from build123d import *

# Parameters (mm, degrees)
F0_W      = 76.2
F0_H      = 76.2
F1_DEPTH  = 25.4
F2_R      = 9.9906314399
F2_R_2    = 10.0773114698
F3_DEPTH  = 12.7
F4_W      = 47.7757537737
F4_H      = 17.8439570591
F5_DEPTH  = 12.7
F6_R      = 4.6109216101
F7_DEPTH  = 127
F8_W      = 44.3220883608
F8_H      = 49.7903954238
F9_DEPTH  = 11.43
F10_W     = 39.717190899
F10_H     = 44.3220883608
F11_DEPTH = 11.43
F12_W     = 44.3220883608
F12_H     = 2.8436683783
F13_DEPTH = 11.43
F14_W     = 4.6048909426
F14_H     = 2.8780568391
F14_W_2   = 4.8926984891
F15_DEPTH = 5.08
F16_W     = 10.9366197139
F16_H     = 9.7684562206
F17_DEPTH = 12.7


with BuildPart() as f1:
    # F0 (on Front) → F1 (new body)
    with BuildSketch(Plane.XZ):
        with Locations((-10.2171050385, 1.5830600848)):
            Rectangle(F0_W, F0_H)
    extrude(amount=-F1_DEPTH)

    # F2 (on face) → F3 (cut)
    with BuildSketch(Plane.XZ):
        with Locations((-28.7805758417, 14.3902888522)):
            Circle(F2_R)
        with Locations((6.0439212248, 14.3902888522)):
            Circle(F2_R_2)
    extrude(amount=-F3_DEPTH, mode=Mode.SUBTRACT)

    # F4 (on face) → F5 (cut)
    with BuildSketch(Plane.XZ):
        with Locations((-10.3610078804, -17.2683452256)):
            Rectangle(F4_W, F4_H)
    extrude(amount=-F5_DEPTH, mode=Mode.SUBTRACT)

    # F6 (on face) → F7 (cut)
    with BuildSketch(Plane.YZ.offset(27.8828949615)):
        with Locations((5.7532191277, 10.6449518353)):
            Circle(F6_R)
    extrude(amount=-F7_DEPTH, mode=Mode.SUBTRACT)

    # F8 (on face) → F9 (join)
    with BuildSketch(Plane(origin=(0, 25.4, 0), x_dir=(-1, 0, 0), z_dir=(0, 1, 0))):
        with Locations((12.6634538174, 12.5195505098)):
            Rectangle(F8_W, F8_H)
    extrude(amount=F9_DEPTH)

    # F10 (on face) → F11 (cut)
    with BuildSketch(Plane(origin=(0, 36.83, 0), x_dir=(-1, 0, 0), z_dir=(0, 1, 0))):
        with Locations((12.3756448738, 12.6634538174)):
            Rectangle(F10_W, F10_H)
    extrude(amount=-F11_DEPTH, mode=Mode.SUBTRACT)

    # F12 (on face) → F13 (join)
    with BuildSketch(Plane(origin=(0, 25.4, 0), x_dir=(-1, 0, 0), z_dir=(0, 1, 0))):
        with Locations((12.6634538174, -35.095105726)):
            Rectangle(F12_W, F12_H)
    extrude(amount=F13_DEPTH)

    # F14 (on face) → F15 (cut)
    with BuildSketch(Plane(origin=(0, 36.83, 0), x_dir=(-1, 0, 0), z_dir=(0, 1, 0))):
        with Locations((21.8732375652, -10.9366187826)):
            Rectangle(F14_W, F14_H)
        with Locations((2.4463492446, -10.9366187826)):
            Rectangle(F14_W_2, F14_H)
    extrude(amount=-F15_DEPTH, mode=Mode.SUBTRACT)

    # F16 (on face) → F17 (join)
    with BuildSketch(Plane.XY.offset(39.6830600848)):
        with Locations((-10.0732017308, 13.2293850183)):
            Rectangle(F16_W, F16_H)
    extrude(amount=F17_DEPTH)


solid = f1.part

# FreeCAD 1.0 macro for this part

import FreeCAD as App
import Part
import Sketcher

V = App.Vector
Q = App.Units.Quantity

doc = App.newDocument("Part")
body = doc.addObject("PartDesign::Body", "Body")

# Sketch on XZ plane
sketch1 = body.newObject("Sketcher::SketchObject", "Sketch")
sketch1.AttachmentSupport = (doc.getObject("XZ_Plane"), [""])
sketch1.MapMode = "FlatFace"
sketch1.addGeometry([
    Part.LineSegment(V(-48, 40, 0), V(-48, -37, 0)),
    Part.LineSegment(V(-48, -37, 0), V(28, -37, 0)),
    Part.LineSegment(V(28, -37, 0), V(28, 40, 0)),
    Part.LineSegment(V(28, 40, 0), V(-48, 40, 0)),
], False)
sketch1.addConstraint([
    Sketcher.Constraint("Coincident", 0, 2, 1, 1),
    Sketcher.Constraint("Coincident", 1, 2, 2, 1),
    Sketcher.Constraint("Coincident", 2, 2, 3, 1),
    Sketcher.Constraint("Coincident", 3, 2, 0, 1),
    Sketcher.Constraint("Vertical", 0),
    Sketcher.Constraint("Horizontal", 1),
    Sketcher.Constraint("Vertical", 2),
    Sketcher.Constraint("Horizontal", 3),
    Sketcher.Constraint("Equal", 3, 0),
    Sketcher.Constraint("DistanceX", 1, 1, 1, 2, Q("3 in")),
    Sketcher.Constraint("DistanceY", 0, 2, -1, 1, 36.51694),
    Sketcher.Constraint("DistanceX", 0, 2, -1, 1, 48.317105),
])
pad1 = body.newObject("PartDesign::Pad", "Pad")
pad1.Profile = sketch1
pad1.Length = Q("1 in")
pad1.Reversed = True

# Sketch on XZ plane
sketch2 = body.newObject("Sketcher::SketchObject", "Sketch001")
sketch2.AttachmentSupport = (doc.getObject("XZ_Plane"), [""])
sketch2.MapMode = "FlatFace"
sketch2.addGeometry([
    Part.Circle(V(-29, 14, 0), V(0, 0, 1), 10),
    Part.Circle(V(6, 14, 0), V(0, 0, 1), 10),
], False)
sketch2.addConstraint([
    Sketcher.Constraint("Horizontal", 0, 3, 1, 3),
    Sketcher.Constraint("Diameter", 0, 19.981263),
    Sketcher.Constraint("Diameter", 1, 20.154623),
    Sketcher.Constraint("DistanceY", -1, 1, 0, 3, 14.390289),
    Sketcher.Constraint("DistanceX", -1, 1, 1, 3, 6.043921),
    Sketcher.Constraint("DistanceX", 0, 3, -1, 1, 28.780576),
])
pocket1 = body.newObject("PartDesign::Pocket", "Pocket")
pocket1.Profile = sketch2
pocket1.Length = Q("0.5 in")

# Sketch on XZ plane
sketch3 = body.newObject("Sketcher::SketchObject", "Sketch002")
sketch3.AttachmentSupport = (doc.getObject("XZ_Plane"), [""])
sketch3.MapMode = "FlatFace"
sketch3.addGeometry([
    Part.LineSegment(V(-34, -8, 0), V(-34, -26, 0)),
    Part.LineSegment(V(-34, -26, 0), V(14, -26, 0)),
    Part.LineSegment(V(14, -26, 0), V(14, -8, 0)),
    Part.LineSegment(V(14, -8, 0), V(-34, -8, 0)),
], False)
sketch3.addConstraint([
    Sketcher.Constraint("Coincident", 0, 2, 1, 1),
    Sketcher.Constraint("Coincident", 1, 2, 2, 1),
    Sketcher.Constraint("Coincident", 2, 2, 3, 1),
    Sketcher.Constraint("Coincident", 3, 2, 0, 1),
    Sketcher.Constraint("Vertical", 0),
    Sketcher.Constraint("Horizontal", 1),
    Sketcher.Constraint("Vertical", 2),
    Sketcher.Constraint("Horizontal", 3),
    Sketcher.Constraint("DistanceX", 1, 1, 1, 2, 47.775754),
    Sketcher.Constraint("DistanceY", 0, 2, 0, 1, 17.843957),
    Sketcher.Constraint("DistanceX", -1, 1, 1, 2, 13.526869),
    Sketcher.Constraint("DistanceY", 0, 2, -1, 1, 26.190324),
])
pocket2 = body.newObject("PartDesign::Pocket", "Pocket001")
pocket2.Profile = sketch3
pocket2.Length = Q("0.5 in")

# Sketch on YZ plane
sketch4 = body.newObject("Sketcher::SketchObject", "Sketch003")
sketch4.AttachmentSupport = (doc.getObject("YZ_Plane"), [""])
sketch4.MapMode = "FlatFace"
sketch4.AttachmentOffset = App.Placement(V(0, 0, 27.882895), App.Rotation())
sketch4.addGeometry(Part.Circle(V(5.8, 10.6, 0), V(0, 0, 1), 4.6), False)
sketch4.addConstraint([
    Sketcher.Constraint("Diameter", 0, 9.221843),
    Sketcher.Constraint("DistanceX", -1, 1, 0, 3, 5.753219),
    Sketcher.Constraint("DistanceY", -1, 1, 0, 3, 10.644952),
])
pocket3 = body.newObject("PartDesign::Pocket", "Pocket002")
pocket3.Profile = sketch4
pocket3.Length = Q("5 in")

# Sketch on XZ plane
sketch5 = body.newObject("Sketcher::SketchObject", "Sketch004")
sketch5.AttachmentSupport = (doc.getObject("XZ_Plane"), [""])
sketch5.MapMode = "FlatFace"
sketch5.AttachmentOffset = App.Placement(V(0, 0, -1 * 25.4), App.Rotation())
sketch5.addGeometry([
    Part.LineSegment(V(9, 37, 0), V(9, -12, 0)),
    Part.LineSegment(V(9, -12, 0), V(-35, -12, 0)),
    Part.LineSegment(V(-35, -12, 0), V(-35, 37, 0)),
    Part.LineSegment(V(-35, 37, 0), V(9, 37, 0)),
], False)
sketch5.addConstraint([
    Sketcher.Constraint("Coincident", 0, 2, 1, 1),
    Sketcher.Constraint("Coincident", 1, 2, 2, 1),
    Sketcher.Constraint("Coincident", 2, 2, 3, 1),
    Sketcher.Constraint("Coincident", 3, 2, 0, 1),
    Sketcher.Constraint("Vertical", 0),
    Sketcher.Constraint("Horizontal", 1),
    Sketcher.Constraint("Vertical", 2),
    Sketcher.Constraint("Horizontal", 3),
    Sketcher.Constraint("DistanceX", 1, 2, 1, 1, 44.322088),
    Sketcher.Constraint("DistanceY", 0, 2, 0, 1, 49.790395),
    Sketcher.Constraint("DistanceX", -1, 1, 0, 2, 9.49759),
    Sketcher.Constraint("DistanceY", -1, 1, 2, 2, 37.414748),
])
pad2 = body.newObject("PartDesign::Pad", "Pad001")
pad2.Profile = sketch5
pad2.Length = Q("0.45 in")
pad2.Reversed = True

# Sketch on XZ plane
sketch6 = body.newObject("Sketcher::SketchObject", "Sketch005")
sketch6.AttachmentSupport = (doc.getObject("XZ_Plane"), [""])
sketch6.MapMode = "FlatFace"
sketch6.AttachmentOffset = App.Placement(V(0, 0, -1.45 * 25.4), App.Rotation())
sketch6.addGeometry([
    Part.LineSegment(V(7, 35, 0), V(7, -9, 0)),
    Part.LineSegment(V(7, -9, 0), V(-32, -9, 0)),
    Part.LineSegment(V(-32, -9, 0), V(-32, 35, 0)),
    Part.LineSegment(V(-32, 35, 0), V(7, 35, 0)),
], False)
sketch6.addConstraint([
    Sketcher.Constraint("Coincident", 0, 2, 1, 1),
    Sketcher.Constraint("Coincident", 1, 2, 2, 1),
    Sketcher.Constraint("Coincident", 2, 2, 3, 1),
    Sketcher.Constraint("Coincident", 3, 2, 0, 1),
    Sketcher.Constraint("Vertical", 0),
    Sketcher.Constraint("Horizontal", 1),
    Sketcher.Constraint("Vertical", 2),
    Sketcher.Constraint("Horizontal", 3),
    Sketcher.Constraint("DistanceX", 1, 2, 1, 1, 39.717191),
    Sketcher.Constraint("DistanceY", 0, 2, 0, 1, 44.322088),
    Sketcher.Constraint("DistanceX", -1, 1, 0, 2, 7.482951),
    Sketcher.Constraint("DistanceY", 0, 2, -1, 1, 9.49759),
])
pocket4 = body.newObject("PartDesign::Pocket", "Pocket003")
pocket4.Profile = sketch6
pocket4.Length = Q("0.45 in")
pocket4.Reversed = True

# Sketch on XZ plane
sketch7 = body.newObject("Sketcher::SketchObject", "Sketch006")
sketch7.AttachmentSupport = (doc.getObject("XZ_Plane"), [""])
sketch7.MapMode = "FlatFace"
sketch7.AttachmentOffset = App.Placement(V(0, 0, -1 * 25.4), App.Rotation())
sketch7.addGeometry([
    Part.LineSegment(V(9.5, -33.7, 0), V(9.5, -36.5, 0)),
    Part.LineSegment(V(9.5, -36.5, 0), V(-34.8, -36.5, 0)),
    Part.LineSegment(V(-34.8, -36.5, 0), V(-34.8, -33.7, 0)),
    Part.LineSegment(V(-34.8, -33.7, 0), V(9.5, -33.7, 0)),
], False)
sketch7.addConstraint([
    Sketcher.Constraint("Coincident", 0, 2, 1, 1),
    Sketcher.Constraint("Coincident", 1, 2, 2, 1),
    Sketcher.Constraint("Coincident", 2, 2, 3, 1),
    Sketcher.Constraint("Coincident", 3, 2, 0, 1),
    Sketcher.Constraint("Vertical", 0),
    Sketcher.Constraint("Horizontal", 1),
    Sketcher.Constraint("Vertical", 2),
    Sketcher.Constraint("Horizontal", 3),
    Sketcher.Constraint("DistanceX", 1, 2, 1, 1, 44.322088),
    Sketcher.Constraint("DistanceY", 0, 2, 0, 1, 2.843668),
    Sketcher.Constraint("DistanceX", -1, 1, 0, 2, 9.49759),
    Sketcher.Constraint("DistanceY", 0, 2, -1, 1, 36.51694),
])
pad3 = body.newObject("PartDesign::Pad", "Pad002")
pad3.Profile = sketch7
pad3.Length = Q("0.45 in")
pad3.Reversed = True

# Sketch on XZ plane
sketch8 = body.newObject("Sketcher::SketchObject", "Sketch007")
sketch8.AttachmentSupport = (doc.getObject("XZ_Plane"), [""])
sketch8.MapMode = "FlatFace"
sketch8.AttachmentOffset = App.Placement(V(0, 0, -1.45 * 25.4), App.Rotation())
sketch8.addGeometry([
    Part.LineSegment(V(-19.6, -9.5, 0), V(-19.6, -12.4, 0)),  # 0
    Part.LineSegment(V(-19.6, -12.4, 0), V(-24.2, -12.4, 0)),  # 1
    Part.LineSegment(V(-24.2, -12.4, 0), V(-24.2, -9.5, 0)),  # 2
    Part.LineSegment(V(-24.2, -9.5, 0), V(-19.6, -9.5, 0)),  # 3
    Part.LineSegment(V(0, -9.5, 0), V(0, -12.4, 0)),  # 4
    Part.LineSegment(V(0, -12.4, 0), V(-4.9, -12.4, 0)),  # 5
    Part.LineSegment(V(-4.9, -12.4, 0), V(-4.9, -9.5, 0)),  # 6
    Part.LineSegment(V(-4.9, -9.5, 0), V(0, -9.5, 0)),  # 7
], False)
sketch8.addConstraint([
    Sketcher.Constraint("Coincident", 0, 2, 1, 1),
    Sketcher.Constraint("Coincident", 1, 2, 2, 1),
    Sketcher.Constraint("Coincident", 2, 2, 3, 1),
    Sketcher.Constraint("Coincident", 3, 2, 0, 1),
    Sketcher.Constraint("Coincident", 4, 2, 5, 1),
    Sketcher.Constraint("Coincident", 5, 2, 6, 1),
    Sketcher.Constraint("Coincident", 6, 2, 7, 1),
    Sketcher.Constraint("Coincident", 7, 2, 4, 1),
    Sketcher.Constraint("Vertical", 0),
    Sketcher.Constraint("Horizontal", 1),
    Sketcher.Constraint("Vertical", 2),
    Sketcher.Constraint("Horizontal", 3),
    Sketcher.Constraint("Vertical", 4),
    Sketcher.Constraint("Horizontal", 5),
    Sketcher.Constraint("Vertical", 6),
    Sketcher.Constraint("Horizontal", 7),
    Sketcher.Constraint("PointOnObject", 4, 2, -2),
    Sketcher.Constraint("Horizontal", 1, 2, 4, 2),
    Sketcher.Constraint("Horizontal", 3, 2, 6, 2),
    Sketcher.Constraint("DistanceX", 5, 2, 5, 1, 4.892698),
    Sketcher.Constraint("DistanceX", 1, 2, 1, 1, 4.604891),
    Sketcher.Constraint("DistanceY", 0, 2, 0, 1, 2.878057),
    Sketcher.Constraint("DistanceY", 2, 2, -1, 1, 9.49759),
    Sketcher.Constraint("DistanceX", 0, 2, -1, 1, 19.570792),
])
pocket5 = body.newObject("PartDesign::Pocket", "Pocket004")
pocket5.Profile = sketch8
pocket5.Length = Q("0.2 in")
pocket5.Reversed = True

# Sketch on XY plane
sketch9 = body.newObject("Sketcher::SketchObject", "Sketch008")
sketch9.AttachmentSupport = (doc.getObject("XY_Plane"), [""])
sketch9.MapMode = "FlatFace"
sketch9.AttachmentOffset = App.Placement(V(0, 0, 39.68306), App.Rotation())
sketch9.addGeometry([
    Part.LineSegment(V(-16, 18, 0), V(-16, 8, 0)),
    Part.LineSegment(V(-16, 8, 0), V(-5, 8, 0)),
    Part.LineSegment(V(-5, 8, 0), V(-5, 18, 0)),
    Part.LineSegment(V(-5, 18, 0), V(-16, 18, 0)),
], False)
sketch9.addConstraint([
    Sketcher.Constraint("Coincident", 0, 2, 1, 1),
    Sketcher.Constraint("Coincident", 1, 2, 2, 1),
    Sketcher.Constraint("Coincident", 2, 2, 3, 1),
    Sketcher.Constraint("Coincident", 3, 2, 0, 1),
    Sketcher.Constraint("Vertical", 0),
    Sketcher.Constraint("Horizontal", 1),
    Sketcher.Constraint("Vertical", 2),
    Sketcher.Constraint("Horizontal", 3),
    Sketcher.Constraint("DistanceX", 1, 1, 1, 2, 10.93662),
    Sketcher.Constraint("DistanceY", 0, 2, 0, 1, 9.768456),
    Sketcher.Constraint("DistanceX", 0, 2, -1, 1, 15.541512),
    Sketcher.Constraint("DistanceY", -1, 1, 0, 2, 8.345157),
])
pad4 = body.newObject("PartDesign::Pad", "Pad003")
pad4.Profile = sketch9
pad4.Length = Q("0.5 in")

doc.recompute()
